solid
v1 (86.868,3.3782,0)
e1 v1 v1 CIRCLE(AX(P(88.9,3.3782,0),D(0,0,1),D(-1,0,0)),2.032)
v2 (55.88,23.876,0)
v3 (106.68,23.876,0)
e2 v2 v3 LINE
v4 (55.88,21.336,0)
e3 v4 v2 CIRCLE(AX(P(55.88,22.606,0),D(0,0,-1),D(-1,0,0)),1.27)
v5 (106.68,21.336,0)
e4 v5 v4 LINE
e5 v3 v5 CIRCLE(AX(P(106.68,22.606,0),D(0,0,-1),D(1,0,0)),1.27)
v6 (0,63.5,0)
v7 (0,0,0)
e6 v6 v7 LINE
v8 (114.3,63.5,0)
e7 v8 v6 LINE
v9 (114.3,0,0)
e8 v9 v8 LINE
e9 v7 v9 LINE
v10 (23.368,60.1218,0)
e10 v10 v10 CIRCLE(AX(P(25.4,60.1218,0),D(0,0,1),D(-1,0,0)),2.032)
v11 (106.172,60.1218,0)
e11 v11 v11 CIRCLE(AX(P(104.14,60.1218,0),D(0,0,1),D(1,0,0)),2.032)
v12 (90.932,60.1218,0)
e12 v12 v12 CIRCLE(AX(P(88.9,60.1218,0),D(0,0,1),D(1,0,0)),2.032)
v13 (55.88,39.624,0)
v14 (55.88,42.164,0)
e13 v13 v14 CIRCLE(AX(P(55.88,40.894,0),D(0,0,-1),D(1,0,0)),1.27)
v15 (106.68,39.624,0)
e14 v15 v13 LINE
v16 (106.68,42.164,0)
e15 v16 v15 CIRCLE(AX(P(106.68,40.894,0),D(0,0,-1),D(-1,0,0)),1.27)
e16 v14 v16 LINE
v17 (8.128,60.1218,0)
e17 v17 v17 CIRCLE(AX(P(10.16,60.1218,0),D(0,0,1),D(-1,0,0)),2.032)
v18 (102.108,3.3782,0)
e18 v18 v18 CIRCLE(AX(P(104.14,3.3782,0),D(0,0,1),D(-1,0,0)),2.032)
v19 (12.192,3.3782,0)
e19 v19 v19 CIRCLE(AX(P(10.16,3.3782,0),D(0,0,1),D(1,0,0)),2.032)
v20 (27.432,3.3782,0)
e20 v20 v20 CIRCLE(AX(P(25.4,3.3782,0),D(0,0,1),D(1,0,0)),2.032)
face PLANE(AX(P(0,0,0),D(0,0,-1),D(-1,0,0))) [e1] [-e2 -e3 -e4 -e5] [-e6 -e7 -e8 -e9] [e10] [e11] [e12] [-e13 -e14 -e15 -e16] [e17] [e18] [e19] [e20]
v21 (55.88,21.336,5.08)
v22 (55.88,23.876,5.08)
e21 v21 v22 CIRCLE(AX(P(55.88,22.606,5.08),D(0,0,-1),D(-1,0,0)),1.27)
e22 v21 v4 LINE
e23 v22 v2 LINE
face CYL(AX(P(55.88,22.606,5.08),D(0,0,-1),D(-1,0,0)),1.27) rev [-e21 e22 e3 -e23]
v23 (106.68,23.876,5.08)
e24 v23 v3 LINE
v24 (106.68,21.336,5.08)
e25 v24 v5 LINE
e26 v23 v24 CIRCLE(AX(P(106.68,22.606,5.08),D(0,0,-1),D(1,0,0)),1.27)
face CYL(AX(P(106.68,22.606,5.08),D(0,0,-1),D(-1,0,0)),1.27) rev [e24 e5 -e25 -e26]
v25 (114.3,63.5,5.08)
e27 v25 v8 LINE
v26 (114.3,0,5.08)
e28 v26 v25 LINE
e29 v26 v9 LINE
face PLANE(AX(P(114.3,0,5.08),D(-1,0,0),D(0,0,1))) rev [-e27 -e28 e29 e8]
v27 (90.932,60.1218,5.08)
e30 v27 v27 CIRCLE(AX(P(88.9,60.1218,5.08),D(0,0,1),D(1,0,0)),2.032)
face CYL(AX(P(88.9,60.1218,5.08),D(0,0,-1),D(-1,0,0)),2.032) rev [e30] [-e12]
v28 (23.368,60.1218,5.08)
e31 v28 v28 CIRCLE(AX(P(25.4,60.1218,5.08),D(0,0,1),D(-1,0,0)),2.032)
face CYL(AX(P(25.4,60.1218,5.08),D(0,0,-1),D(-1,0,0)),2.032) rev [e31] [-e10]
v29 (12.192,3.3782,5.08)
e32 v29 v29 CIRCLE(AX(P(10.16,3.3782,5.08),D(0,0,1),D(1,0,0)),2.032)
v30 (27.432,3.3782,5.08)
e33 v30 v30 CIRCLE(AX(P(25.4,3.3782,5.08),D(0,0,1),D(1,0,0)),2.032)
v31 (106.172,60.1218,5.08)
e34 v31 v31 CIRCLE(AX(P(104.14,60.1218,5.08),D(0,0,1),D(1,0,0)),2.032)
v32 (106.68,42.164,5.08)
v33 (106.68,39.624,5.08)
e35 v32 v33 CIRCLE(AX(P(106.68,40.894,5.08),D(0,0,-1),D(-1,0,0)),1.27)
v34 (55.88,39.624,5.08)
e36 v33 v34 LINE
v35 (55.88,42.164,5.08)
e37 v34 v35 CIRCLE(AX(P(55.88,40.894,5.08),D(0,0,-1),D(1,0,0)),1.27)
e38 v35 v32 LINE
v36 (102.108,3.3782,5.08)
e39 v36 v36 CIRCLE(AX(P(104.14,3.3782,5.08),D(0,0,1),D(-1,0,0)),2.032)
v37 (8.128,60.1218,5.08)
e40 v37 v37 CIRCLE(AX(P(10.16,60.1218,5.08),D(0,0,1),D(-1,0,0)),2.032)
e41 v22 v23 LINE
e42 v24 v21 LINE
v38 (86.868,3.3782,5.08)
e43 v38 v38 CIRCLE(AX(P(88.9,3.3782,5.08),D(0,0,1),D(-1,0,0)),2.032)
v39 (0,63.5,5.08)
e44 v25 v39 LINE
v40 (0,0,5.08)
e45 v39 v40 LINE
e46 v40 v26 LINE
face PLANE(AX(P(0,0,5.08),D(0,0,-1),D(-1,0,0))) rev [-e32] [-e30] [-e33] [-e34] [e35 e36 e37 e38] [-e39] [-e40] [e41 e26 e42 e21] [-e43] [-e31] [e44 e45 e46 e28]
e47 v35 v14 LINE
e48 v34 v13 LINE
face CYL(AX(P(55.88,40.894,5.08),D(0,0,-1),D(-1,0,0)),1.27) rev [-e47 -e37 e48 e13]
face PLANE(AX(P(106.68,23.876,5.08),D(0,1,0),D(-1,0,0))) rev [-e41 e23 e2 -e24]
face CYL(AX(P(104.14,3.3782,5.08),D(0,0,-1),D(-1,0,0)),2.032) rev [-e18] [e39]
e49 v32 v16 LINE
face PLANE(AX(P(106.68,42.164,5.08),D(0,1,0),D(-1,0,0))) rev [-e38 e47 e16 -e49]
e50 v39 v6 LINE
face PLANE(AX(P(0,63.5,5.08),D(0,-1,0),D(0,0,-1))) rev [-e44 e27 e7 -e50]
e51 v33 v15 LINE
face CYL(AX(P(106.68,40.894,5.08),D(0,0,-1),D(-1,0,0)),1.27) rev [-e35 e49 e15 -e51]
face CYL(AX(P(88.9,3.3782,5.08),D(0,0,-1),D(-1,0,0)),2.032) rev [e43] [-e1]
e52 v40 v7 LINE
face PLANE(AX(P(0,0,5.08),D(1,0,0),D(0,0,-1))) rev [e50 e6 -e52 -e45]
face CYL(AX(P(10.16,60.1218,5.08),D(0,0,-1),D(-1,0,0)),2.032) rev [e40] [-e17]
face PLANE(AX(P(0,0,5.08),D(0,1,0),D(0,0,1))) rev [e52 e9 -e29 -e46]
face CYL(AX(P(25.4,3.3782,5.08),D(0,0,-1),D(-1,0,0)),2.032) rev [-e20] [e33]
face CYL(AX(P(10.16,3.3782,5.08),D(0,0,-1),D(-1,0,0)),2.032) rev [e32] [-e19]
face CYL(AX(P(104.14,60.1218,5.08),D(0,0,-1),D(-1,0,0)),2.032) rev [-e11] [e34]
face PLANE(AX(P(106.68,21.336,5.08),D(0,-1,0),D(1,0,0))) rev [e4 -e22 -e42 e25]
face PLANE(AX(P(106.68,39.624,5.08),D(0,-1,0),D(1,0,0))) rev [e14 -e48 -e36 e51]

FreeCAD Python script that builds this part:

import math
import FreeCAD as App
import Part
import Sketcher

V = App.Vector
Q = App.Units.Quantity

doc = App.newDocument("Part")
body = doc.addObject("PartDesign::Body", "Body")

sketch1 = body.newObject("Sketcher::SketchObject", "Sketch")
sketch1.AttachmentSupport = (doc.getObject("XY_Plane"), [""])
sketch1.MapMode = "FlatFace"
sketch1.addGeometry([
    Part.LineSegment(V(0, 63.5, 0), V(0, 0, 0)),
    Part.LineSegment(V(0, 0, 0), V(114.3, 0, 0)),
    Part.LineSegment(V(114.3, 0, 0), V(114.3, 63.5, 0)),
    Part.LineSegment(V(114.3, 63.5, 0), V(0, 63.5, 0)),
], False)
sketch1.addConstraint([
    Sketcher.Constraint("Coincident", 0, 2, 1, 1),
    Sketcher.Constraint("Coincident", 1, 2, 2, 1),
    Sketcher.Constraint("Coincident", 2, 2, 3, 1),
    Sketcher.Constraint("Coincident", 3, 2, 0, 1),
    Sketcher.Constraint("Vertical", 0),
    Sketcher.Constraint("Horizontal", 1),
    Sketcher.Constraint("Vertical", 2),
    Sketcher.Constraint("Horizontal", 3),
    Sketcher.Constraint("Coincident", 0, 2, -1, 1),
    Sketcher.Constraint("DistanceX", 1, 1, 1, 2, Q("4.5 in")),
    Sketcher.Constraint("DistanceY", 0, 2, 0, 1, Q("2.5 in")),
])
pad1 = body.newObject("PartDesign::Pad", "Pad")
pad1.Profile = sketch1
pad1.Length = Q("0.2 in")

sketch2 = body.newObject("Sketcher::SketchObject", "Sketch001")
sketch2.AttachmentSupport = (doc.getObject("XY_Plane"), [""])
sketch2.MapMode = "FlatFace"
sketch2.addGeometry([
    Part.Circle(V(88.9, 60.1218, 0), V(0, 0, 1), 2.032),
    Part.Circle(V(88.9, 3.3782, 0), V(0, 0, 1), 2.032),
    Part.Circle(V(25.4, 3.3782, 0), V(0, 0, 1), 2.032),
    Part.Circle(V(25.4, 60.1218, 0), V(0, 0, 1), 2.032),
    Part.Circle(V(10.16, 3.3782, 0), V(0, 0, 1), 2.032),
    Part.Circle(V(10.16, 60.1218, 0), V(0, 0, 1), 2.032),
    Part.Circle(V(104.14, 3.3782, 0), V(0, 0, 1), 2.032),
    Part.Circle(V(104.14, 60.1218, 0), V(0, 0, 1), 2.032),
], False)
sketch2.addConstraint([
    Sketcher.Constraint("Equal", 0, 1),
    Sketcher.Constraint("Equal", 1, 2),
    Sketcher.Constraint("Equal", 2, 3),
    Sketcher.Constraint("Equal", 3, 4),
    Sketcher.Constraint("Equal", 4, 5),
    Sketcher.Constraint("Equal", 5, 6),
    Sketcher.Constraint("Equal", 6, 7),
    Sketcher.Constraint("Horizontal", 1, 3, 2, 3),
    Sketcher.Constraint("Horizontal", 0, 3, 3, 3),
    Sketcher.Constraint("Horizontal", 2, 3, 4, 3),
    Sketcher.Constraint("Horizontal", 3, 3, 5, 3),
    Sketcher.Constraint("Horizontal", 4, 3, 6, 3),
    Sketcher.Constraint("Horizontal", 5, 3, 7, 3),
    Sketcher.Constraint("Vertical", 0, 3, 1, 3),
    Sketcher.Constraint("Vertical", 2, 3, 3, 3),
    Sketcher.Constraint("Vertical", 4, 3, 5, 3),
    Sketcher.Constraint("Vertical", 6, 3, 7, 3),
    Sketcher.Constraint("Diameter", 0, Q("0.16 in")),
    Sketcher.Constraint("DistanceX", -1, 1, 2, 3, Q("1 in")),
    Sketcher.Constraint("DistanceX", -1, 1, 0, 3, Q("3.5 in")),
    Sketcher.Constraint("DistanceX", -1, 1, 4, 3, Q("0.4 in")),
    Sketcher.Constraint("DistanceX", -1, 1, 6, 3, Q("4.1 in")),
    Sketcher.Constraint("DistanceY", -1, 1, 0, 3, Q("2.367 in")),
    Sketcher.Constraint("DistanceY", -1, 1, 1, 3, Q("0.133 in")),
])
pocket1 = body.newObject("PartDesign::Pocket", "Pocket")
pocket1.Profile = sketch2
pocket1.Type = "ThroughAll"
pocket1.Reversed = True

sketch3 = body.newObject("Sketcher::SketchObject", "Sketch002")
sketch3.AttachmentSupport = (doc.getObject("XY_Plane"), [""])
sketch3.MapMode = "FlatFace"
sketch3.addGeometry([
    Part.LineSegment(V(55.88, 42.164, 0), V(106.68, 42.164, 0)),
    Part.ArcOfCircle(Part.Circle(V(106.68, 40.894, 0), V(0, 0, 1), 1.27), math.radians(-90), math.radians(90)),
    Part.LineSegment(V(106.68, 39.624, 0), V(55.88, 39.624, 0)),
    Part.ArcOfCircle(Part.Circle(V(55.88, 40.894, 0), V(0, 0, 1), 1.27), math.radians(90), math.radians(270)),
    Part.LineSegment(V(55.88, 23.876, 0), V(106.68, 23.876, 0)),
    Part.ArcOfCircle(Part.Circle(V(106.68, 22.606, 0), V(0, 0, 1), 1.27), math.radians(-90), math.radians(90)),
    Part.LineSegment(V(106.68, 21.336, 0), V(55.88, 21.336, 0)),
    Part.ArcOfCircle(Part.Circle(V(55.88, 22.606, 0), V(0, 0, 1), 1.27), math.radians(90), math.radians(270)),
], False)
sketch3.addConstraint([
    Sketcher.Constraint("Tangent", 0, 2, 1, 2),
    Sketcher.Constraint("Tangent", 1, 1, 2, 1),
    Sketcher.Constraint("Tangent", 2, 2, 3, 2),
    Sketcher.Constraint("Tangent", 3, 1, 0, 1),
    Sketcher.Constraint("Tangent", 4, 2, 5, 2),
    Sketcher.Constraint("Tangent", 5, 1, 6, 1),
    Sketcher.Constraint("Tangent", 6, 2, 7, 2),
    Sketcher.Constraint("Tangent", 7, 1, 4, 1),
    Sketcher.Constraint("Horizontal", 0),
    Sketcher.Constraint("Horizontal", 2),
    Sketcher.Constraint("Horizontal", 4),
    Sketcher.Constraint("Horizontal", 6),
    Sketcher.Constraint("Equal", 3, 5),
    Sketcher.Constraint("Vertical", 1, 3, 5, 3),
    Sketcher.Constraint("Vertical", 3, 3, 7, 3),
    Sketcher.Constraint("DistanceX", 0, 1, 0, 2, Q("2 in")),
    Sketcher.Constraint("Radius", 1, Q("0.05 in")),
    Sketcher.Constraint("DistanceX", -1, 1, 1, 3, Q("4.2 in")),
    Sketcher.Constraint("DistanceY", -1, 1, 1, 3, Q("1.61 in")),
    Sketcher.Constraint("DistanceY", -1, 1, 5, 3, Q("0.89 in")),
])
pocket2 = body.newObject("PartDesign::Pocket", "Pocket001")
pocket2.Profile = sketch3
pocket2.Type = "ThroughAll"
pocket2.Reversed = True

doc.recompute()
